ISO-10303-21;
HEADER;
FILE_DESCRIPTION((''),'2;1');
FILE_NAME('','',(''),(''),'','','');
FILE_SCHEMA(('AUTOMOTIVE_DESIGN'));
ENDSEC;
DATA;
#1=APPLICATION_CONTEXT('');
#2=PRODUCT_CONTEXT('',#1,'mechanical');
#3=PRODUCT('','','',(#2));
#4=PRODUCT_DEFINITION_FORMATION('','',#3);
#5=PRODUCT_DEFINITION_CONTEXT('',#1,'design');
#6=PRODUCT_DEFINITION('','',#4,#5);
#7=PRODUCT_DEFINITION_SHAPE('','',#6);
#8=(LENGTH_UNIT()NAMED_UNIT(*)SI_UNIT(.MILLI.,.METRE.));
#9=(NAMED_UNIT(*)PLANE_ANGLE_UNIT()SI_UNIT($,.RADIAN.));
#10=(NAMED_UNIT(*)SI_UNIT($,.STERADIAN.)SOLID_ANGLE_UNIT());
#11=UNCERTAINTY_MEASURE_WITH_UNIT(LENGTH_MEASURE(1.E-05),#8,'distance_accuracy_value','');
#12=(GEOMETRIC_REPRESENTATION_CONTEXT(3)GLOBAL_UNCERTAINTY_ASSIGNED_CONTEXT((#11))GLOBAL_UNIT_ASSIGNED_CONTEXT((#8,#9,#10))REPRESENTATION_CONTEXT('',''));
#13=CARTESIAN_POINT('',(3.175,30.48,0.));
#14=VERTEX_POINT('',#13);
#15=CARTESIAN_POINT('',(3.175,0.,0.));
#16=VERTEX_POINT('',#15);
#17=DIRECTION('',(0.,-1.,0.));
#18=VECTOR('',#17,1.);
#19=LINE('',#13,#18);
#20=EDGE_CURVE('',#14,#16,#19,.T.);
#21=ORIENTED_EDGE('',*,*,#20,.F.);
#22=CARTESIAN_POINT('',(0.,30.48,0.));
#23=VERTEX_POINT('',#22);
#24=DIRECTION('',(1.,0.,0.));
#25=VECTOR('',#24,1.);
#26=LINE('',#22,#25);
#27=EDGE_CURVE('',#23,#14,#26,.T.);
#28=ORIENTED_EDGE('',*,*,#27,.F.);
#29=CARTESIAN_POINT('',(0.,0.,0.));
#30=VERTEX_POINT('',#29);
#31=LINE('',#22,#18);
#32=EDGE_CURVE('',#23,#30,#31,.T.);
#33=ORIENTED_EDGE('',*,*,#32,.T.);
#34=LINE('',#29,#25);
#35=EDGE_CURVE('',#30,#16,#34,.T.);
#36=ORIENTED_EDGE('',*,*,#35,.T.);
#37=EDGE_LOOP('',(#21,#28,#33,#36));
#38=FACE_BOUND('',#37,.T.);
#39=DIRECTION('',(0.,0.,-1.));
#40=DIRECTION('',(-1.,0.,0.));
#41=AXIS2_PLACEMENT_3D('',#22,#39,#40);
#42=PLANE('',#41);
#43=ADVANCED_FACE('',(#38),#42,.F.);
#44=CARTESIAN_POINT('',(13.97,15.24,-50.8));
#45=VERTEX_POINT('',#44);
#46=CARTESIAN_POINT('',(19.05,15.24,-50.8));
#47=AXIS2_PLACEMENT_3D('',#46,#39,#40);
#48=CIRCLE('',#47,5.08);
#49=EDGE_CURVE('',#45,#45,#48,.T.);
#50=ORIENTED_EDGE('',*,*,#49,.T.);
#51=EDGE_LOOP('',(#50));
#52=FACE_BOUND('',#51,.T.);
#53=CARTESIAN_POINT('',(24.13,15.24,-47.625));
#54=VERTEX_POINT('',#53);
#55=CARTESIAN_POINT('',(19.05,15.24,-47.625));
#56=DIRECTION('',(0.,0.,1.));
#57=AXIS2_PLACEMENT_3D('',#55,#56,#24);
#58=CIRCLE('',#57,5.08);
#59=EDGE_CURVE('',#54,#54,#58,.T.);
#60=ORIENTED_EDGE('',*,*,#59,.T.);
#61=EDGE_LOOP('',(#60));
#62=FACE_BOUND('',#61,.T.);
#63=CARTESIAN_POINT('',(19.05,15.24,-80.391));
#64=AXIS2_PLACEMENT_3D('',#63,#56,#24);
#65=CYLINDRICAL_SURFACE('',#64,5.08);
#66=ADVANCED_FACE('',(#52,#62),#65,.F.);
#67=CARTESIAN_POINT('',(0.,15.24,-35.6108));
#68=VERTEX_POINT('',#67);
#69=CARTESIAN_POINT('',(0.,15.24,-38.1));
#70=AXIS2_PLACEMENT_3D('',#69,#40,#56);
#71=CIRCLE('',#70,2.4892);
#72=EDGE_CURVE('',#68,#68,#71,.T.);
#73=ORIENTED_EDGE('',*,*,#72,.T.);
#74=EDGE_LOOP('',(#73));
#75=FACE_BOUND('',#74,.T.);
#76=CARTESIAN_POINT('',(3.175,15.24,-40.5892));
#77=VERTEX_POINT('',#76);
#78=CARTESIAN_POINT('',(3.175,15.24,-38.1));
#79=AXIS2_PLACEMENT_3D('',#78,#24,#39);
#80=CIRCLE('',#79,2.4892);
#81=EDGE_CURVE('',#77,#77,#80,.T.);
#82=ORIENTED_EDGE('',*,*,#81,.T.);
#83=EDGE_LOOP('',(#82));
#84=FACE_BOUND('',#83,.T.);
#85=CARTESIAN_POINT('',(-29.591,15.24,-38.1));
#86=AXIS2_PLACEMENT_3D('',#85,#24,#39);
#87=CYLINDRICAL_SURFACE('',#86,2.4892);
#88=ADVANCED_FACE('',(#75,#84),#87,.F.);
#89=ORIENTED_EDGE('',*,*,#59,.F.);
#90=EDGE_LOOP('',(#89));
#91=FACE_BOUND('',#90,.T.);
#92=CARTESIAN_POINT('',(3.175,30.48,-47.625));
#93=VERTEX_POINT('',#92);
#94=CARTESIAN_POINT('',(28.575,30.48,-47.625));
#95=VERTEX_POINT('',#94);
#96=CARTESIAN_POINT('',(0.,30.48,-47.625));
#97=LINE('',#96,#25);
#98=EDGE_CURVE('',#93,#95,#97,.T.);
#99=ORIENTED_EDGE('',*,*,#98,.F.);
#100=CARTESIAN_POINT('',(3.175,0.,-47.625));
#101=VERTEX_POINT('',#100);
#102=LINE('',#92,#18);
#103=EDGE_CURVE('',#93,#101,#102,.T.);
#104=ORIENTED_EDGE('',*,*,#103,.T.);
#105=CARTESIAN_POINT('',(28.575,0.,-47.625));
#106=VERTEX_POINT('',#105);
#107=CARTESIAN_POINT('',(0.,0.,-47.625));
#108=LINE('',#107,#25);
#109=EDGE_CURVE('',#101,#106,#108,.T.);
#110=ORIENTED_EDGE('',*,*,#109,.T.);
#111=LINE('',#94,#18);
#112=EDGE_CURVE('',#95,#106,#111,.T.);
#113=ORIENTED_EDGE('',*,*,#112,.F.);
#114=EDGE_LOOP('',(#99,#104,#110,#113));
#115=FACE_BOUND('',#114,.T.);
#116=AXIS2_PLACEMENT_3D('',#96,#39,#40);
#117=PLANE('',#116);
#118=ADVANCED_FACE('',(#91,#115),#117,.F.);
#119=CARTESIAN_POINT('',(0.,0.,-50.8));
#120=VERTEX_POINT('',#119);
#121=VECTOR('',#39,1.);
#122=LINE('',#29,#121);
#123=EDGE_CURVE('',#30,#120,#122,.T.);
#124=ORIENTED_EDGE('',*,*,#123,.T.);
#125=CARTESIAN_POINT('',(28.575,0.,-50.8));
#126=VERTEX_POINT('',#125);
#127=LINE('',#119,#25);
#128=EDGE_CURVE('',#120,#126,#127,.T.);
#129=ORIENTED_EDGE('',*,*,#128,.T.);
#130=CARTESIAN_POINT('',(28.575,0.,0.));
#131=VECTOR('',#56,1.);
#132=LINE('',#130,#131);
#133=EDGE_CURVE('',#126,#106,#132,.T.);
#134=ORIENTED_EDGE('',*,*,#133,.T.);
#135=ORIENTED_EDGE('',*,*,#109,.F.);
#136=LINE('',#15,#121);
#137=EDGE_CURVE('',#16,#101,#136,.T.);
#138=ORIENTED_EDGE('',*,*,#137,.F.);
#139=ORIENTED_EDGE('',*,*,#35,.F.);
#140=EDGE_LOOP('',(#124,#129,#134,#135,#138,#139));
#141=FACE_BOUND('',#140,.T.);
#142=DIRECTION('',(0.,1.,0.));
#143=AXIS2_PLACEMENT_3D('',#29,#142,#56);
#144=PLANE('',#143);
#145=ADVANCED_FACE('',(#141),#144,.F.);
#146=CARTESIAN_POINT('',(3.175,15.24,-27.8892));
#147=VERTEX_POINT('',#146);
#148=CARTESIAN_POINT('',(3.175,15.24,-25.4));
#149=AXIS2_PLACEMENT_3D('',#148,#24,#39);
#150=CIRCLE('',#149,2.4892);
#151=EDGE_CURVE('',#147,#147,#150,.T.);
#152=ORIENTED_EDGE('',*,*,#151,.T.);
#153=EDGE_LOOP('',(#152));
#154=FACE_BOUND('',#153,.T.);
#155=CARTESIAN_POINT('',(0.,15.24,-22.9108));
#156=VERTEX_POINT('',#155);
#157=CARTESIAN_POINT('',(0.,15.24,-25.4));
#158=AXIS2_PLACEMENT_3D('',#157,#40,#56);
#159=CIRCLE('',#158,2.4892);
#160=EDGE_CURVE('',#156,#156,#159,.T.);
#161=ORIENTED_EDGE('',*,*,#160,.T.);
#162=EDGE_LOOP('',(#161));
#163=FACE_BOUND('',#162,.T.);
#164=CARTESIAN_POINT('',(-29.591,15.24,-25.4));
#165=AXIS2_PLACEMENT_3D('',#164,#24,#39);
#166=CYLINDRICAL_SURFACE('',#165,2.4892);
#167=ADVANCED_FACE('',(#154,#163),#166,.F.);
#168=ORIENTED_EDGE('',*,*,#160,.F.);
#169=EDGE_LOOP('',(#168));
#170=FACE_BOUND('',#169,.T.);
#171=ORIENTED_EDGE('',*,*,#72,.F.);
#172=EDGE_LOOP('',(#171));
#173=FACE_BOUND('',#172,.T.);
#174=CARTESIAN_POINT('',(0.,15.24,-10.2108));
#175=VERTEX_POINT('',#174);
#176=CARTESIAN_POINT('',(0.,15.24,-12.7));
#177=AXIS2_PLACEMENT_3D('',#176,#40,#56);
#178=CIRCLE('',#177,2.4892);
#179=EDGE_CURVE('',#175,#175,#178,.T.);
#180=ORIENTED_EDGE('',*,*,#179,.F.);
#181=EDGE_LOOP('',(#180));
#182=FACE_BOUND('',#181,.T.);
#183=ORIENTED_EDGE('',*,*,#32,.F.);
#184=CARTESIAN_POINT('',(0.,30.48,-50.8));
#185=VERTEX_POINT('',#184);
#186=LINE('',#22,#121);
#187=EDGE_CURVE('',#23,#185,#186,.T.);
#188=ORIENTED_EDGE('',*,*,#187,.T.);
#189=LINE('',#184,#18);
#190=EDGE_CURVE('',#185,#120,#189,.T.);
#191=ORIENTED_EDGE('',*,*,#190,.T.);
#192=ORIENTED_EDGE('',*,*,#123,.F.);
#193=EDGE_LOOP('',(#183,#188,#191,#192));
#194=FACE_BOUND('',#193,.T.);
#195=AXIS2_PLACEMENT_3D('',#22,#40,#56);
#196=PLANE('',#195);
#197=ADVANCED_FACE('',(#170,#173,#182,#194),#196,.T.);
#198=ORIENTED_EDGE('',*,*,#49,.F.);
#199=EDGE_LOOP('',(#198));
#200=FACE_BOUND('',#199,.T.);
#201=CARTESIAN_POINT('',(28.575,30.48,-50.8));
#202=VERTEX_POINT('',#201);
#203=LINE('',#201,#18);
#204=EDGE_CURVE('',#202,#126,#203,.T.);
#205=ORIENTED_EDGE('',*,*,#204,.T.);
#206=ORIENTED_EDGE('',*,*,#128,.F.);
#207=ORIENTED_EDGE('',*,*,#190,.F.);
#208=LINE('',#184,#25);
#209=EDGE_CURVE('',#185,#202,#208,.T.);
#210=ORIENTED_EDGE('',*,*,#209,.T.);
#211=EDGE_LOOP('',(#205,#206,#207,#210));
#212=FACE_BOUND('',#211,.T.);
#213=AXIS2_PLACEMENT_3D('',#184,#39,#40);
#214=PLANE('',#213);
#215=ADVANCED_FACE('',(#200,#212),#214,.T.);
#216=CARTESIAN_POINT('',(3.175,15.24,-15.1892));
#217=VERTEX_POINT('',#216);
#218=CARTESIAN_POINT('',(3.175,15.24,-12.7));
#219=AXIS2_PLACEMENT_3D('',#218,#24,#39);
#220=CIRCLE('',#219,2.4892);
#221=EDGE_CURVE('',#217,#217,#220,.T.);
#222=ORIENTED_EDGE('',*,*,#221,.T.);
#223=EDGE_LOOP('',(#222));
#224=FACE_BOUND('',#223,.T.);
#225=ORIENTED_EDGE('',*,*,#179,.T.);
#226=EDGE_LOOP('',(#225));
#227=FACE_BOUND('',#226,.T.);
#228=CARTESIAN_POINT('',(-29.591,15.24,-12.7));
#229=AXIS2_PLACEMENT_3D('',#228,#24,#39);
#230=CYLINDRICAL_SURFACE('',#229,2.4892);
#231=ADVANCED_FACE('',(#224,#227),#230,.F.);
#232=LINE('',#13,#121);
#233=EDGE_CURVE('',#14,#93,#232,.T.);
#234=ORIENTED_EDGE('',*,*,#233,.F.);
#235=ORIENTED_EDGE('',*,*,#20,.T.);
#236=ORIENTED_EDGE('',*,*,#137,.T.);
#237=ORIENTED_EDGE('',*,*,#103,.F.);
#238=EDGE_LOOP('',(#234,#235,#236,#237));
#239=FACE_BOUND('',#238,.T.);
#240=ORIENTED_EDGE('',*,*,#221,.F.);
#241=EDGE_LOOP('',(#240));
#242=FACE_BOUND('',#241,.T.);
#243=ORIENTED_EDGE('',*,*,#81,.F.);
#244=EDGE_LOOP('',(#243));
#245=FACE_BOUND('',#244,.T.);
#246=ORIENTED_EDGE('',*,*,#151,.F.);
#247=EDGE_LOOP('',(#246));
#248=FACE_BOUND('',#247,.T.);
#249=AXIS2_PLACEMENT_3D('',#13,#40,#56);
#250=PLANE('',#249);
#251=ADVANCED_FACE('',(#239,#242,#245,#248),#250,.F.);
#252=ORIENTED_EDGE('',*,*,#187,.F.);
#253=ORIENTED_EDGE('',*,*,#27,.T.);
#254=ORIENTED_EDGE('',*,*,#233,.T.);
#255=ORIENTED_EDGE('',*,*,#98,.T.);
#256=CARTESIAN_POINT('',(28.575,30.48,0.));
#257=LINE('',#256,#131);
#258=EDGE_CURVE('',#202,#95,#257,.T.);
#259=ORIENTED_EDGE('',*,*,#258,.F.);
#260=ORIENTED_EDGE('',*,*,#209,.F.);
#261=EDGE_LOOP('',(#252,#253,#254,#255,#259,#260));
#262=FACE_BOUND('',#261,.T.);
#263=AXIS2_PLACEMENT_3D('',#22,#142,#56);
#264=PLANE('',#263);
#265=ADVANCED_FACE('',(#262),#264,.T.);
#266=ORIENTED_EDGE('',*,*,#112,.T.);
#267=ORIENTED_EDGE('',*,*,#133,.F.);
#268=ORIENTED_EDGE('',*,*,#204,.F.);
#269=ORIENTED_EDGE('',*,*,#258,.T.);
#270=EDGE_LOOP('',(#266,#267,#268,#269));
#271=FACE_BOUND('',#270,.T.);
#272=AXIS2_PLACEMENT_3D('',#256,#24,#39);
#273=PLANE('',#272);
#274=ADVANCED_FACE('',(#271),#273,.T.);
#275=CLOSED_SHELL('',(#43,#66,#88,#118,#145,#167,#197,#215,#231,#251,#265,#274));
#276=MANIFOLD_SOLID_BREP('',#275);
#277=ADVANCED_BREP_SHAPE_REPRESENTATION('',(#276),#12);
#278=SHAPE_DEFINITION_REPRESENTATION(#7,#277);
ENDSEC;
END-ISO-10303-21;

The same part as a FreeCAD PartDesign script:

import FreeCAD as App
import Part
import Sketcher
from FreeCAD import Vector
Q = App.Units.Quantity

doc = App.newDocument("Part")
body = doc.addObject("PartDesign::Body", "Body")

sketch1 = body.newObject("Sketcher::SketchObject", "Sketch")
sketch1.AttachmentSupport = (doc.getObject("XZ_Plane"), [""])
sketch1.MapMode = "FlatFace"
sketch1.addGeometry(Part.LineSegment(Vector(0, 0, 0), Vector(3.2, 0, 0)), False)
sketch1.addGeometry(Part.LineSegment(Vector(3.2, 0, 0), Vector(3.2, -47.6, 0)), False)
sketch1.addGeometry(Part.LineSegment(Vector(3.2, -47.6, 0), Vector(28.6, -47.6, 0)), False)
sketch1.addGeometry(Part.LineSegment(Vector(28.6, -47.6, 0), Vector(28.6, -50.8, 0)), False)
sketch1.addGeometry(Part.LineSegment(Vector(28.6, -50.8, 0), Vector(0, -50.8, 0)), False)
sketch1.addGeometry(Part.LineSegment(Vector(0, -50.8, 0), Vector(0, 0, 0)), False)
sketch1.addConstraint(Sketcher.Constraint("Coincident", 0, 2, 1, 1))
sketch1.addConstraint(Sketcher.Constraint("Coincident", 1, 2, 2, 1))
sketch1.addConstraint(Sketcher.Constraint("Coincident", 2, 2, 3, 1))
sketch1.addConstraint(Sketcher.Constraint("Coincident", 3, 2, 4, 1))
sketch1.addConstraint(Sketcher.Constraint("Coincident", 4, 2, 5, 1))
sketch1.addConstraint(Sketcher.Constraint("Coincident", 5, 2, 0, 1))
sketch1.addConstraint(Sketcher.Constraint("Horizontal", 0))
sketch1.addConstraint(Sketcher.Constraint("Vertical", 1))
sketch1.addConstraint(Sketcher.Constraint("Horizontal", 2))
sketch1.addConstraint(Sketcher.Constraint("Vertical", 3))
sketch1.addConstraint(Sketcher.Constraint("Horizontal", 4))
sketch1.addConstraint(Sketcher.Constraint("Vertical", 5))
sketch1.addConstraint(Sketcher.Constraint("Coincident", 5, 2, -1, 1))
sketch1.addConstraint(Sketcher.Constraint("Equal", 0, 3))
sketch1.addConstraint(Sketcher.Constraint("DistanceX", 2, 1, 2, 2, Q("1 in")))
sketch1.addConstraint(Sketcher.Constraint("DistanceY", 5, 1, 5, 2, Q("2 in")))
sketch1.addConstraint(Sketcher.Constraint("DistanceX", 0, 1, 0, 2, Q("0.125 in")))
pad1 = body.newObject("PartDesign::Pad", "Pad")
pad1.Profile = sketch1
pad1.Length = Q("1.2 in")
pad1.Reversed = True

sketch2 = body.newObject("Sketcher::SketchObject", "Sketch001")
sketch2.AttachmentSupport = (doc.getObject("XY_Plane"), [""])
sketch2.MapMode = "FlatFace"
sketch2.AttachmentOffset = App.Placement(Vector(0, 0, -1.875 * 25.4), App.Rotation())
sketch2.addGeometry(Part.Circle(Vector(19, 15, 0), Vector(0, 0, 1), 5), False)
sketch2.addConstraint(Sketcher.Constraint("Diameter", 0, Q("0.4 in")))
sketch2.addConstraint(Sketcher.Constraint("DistanceY", -1, 1, 0, 3, Q("0.6 in")))
sketch2.addConstraint(Sketcher.Constraint("DistanceX", -1, 1, 0, 3, Q("0.75 in")))
pocket1 = body.newObject("PartDesign::Pocket", "Pocket")
pocket1.Profile = sketch2
pocket1.Length = Q("1.29 in")

sketch3 = body.newObject("Sketcher::SketchObject", "Sketch002")
sketch3.AttachmentSupport = (doc.getObject("YZ_Plane"), [""])
sketch3.MapMode = "FlatFace"
sketch3.AttachmentOffset = App.Placement(Vector(0, 0, 0.125 * 25.4), App.Rotation())
sketch3.addGeometry(Part.Circle(Vector(15.2, -12.7, 0), Vector(0, 0, 1), 2.5), False)
sketch3.addGeometry(Part.Circle(Vector(15.2, -25.4, 0), Vector(0, 0, 1), 2.5), False)
sketch3.addGeometry(Part.Circle(Vector(15.2, -38.1, 0), Vector(0, 0, 1), 2.5), False)
sketch3.addConstraint(Sketcher.Constraint("Equal", 0, 1))
sketch3.addConstraint(Sketcher.Constraint("Equal", 1, 2))
sketch3.addConstraint(Sketcher.Constraint("Vertical", 0, 3, 1, 3))
sketch3.addConstraint(Sketcher.Constraint("Vertical", 1, 3, 2, 3))
sketch3.addConstraint(Sketcher.Constraint("Diameter", 0, Q("0.196 in")))
sketch3.addConstraint(Sketcher.Constraint("DistanceY", 1, 3, -1, 1, Q("1 in")))
sketch3.addConstraint(Sketcher.Constraint("DistanceY", 2, 3, 0, 3, Q("1 in")))
sketch3.addConstraint(Sketcher.Constraint("DistanceX", -1, 1, 0, 3, Q("0.6 in")))
sketch3.addConstraint(Sketcher.Constraint("DistanceY", 0, 3, -1, 1, Q("0.5 in")))
pocket2 = body.newObject("PartDesign::Pocket", "Pocket001")
pocket2.Profile = sketch3
pocket2.Length = Q("1.29 in")

doc.recompute()
